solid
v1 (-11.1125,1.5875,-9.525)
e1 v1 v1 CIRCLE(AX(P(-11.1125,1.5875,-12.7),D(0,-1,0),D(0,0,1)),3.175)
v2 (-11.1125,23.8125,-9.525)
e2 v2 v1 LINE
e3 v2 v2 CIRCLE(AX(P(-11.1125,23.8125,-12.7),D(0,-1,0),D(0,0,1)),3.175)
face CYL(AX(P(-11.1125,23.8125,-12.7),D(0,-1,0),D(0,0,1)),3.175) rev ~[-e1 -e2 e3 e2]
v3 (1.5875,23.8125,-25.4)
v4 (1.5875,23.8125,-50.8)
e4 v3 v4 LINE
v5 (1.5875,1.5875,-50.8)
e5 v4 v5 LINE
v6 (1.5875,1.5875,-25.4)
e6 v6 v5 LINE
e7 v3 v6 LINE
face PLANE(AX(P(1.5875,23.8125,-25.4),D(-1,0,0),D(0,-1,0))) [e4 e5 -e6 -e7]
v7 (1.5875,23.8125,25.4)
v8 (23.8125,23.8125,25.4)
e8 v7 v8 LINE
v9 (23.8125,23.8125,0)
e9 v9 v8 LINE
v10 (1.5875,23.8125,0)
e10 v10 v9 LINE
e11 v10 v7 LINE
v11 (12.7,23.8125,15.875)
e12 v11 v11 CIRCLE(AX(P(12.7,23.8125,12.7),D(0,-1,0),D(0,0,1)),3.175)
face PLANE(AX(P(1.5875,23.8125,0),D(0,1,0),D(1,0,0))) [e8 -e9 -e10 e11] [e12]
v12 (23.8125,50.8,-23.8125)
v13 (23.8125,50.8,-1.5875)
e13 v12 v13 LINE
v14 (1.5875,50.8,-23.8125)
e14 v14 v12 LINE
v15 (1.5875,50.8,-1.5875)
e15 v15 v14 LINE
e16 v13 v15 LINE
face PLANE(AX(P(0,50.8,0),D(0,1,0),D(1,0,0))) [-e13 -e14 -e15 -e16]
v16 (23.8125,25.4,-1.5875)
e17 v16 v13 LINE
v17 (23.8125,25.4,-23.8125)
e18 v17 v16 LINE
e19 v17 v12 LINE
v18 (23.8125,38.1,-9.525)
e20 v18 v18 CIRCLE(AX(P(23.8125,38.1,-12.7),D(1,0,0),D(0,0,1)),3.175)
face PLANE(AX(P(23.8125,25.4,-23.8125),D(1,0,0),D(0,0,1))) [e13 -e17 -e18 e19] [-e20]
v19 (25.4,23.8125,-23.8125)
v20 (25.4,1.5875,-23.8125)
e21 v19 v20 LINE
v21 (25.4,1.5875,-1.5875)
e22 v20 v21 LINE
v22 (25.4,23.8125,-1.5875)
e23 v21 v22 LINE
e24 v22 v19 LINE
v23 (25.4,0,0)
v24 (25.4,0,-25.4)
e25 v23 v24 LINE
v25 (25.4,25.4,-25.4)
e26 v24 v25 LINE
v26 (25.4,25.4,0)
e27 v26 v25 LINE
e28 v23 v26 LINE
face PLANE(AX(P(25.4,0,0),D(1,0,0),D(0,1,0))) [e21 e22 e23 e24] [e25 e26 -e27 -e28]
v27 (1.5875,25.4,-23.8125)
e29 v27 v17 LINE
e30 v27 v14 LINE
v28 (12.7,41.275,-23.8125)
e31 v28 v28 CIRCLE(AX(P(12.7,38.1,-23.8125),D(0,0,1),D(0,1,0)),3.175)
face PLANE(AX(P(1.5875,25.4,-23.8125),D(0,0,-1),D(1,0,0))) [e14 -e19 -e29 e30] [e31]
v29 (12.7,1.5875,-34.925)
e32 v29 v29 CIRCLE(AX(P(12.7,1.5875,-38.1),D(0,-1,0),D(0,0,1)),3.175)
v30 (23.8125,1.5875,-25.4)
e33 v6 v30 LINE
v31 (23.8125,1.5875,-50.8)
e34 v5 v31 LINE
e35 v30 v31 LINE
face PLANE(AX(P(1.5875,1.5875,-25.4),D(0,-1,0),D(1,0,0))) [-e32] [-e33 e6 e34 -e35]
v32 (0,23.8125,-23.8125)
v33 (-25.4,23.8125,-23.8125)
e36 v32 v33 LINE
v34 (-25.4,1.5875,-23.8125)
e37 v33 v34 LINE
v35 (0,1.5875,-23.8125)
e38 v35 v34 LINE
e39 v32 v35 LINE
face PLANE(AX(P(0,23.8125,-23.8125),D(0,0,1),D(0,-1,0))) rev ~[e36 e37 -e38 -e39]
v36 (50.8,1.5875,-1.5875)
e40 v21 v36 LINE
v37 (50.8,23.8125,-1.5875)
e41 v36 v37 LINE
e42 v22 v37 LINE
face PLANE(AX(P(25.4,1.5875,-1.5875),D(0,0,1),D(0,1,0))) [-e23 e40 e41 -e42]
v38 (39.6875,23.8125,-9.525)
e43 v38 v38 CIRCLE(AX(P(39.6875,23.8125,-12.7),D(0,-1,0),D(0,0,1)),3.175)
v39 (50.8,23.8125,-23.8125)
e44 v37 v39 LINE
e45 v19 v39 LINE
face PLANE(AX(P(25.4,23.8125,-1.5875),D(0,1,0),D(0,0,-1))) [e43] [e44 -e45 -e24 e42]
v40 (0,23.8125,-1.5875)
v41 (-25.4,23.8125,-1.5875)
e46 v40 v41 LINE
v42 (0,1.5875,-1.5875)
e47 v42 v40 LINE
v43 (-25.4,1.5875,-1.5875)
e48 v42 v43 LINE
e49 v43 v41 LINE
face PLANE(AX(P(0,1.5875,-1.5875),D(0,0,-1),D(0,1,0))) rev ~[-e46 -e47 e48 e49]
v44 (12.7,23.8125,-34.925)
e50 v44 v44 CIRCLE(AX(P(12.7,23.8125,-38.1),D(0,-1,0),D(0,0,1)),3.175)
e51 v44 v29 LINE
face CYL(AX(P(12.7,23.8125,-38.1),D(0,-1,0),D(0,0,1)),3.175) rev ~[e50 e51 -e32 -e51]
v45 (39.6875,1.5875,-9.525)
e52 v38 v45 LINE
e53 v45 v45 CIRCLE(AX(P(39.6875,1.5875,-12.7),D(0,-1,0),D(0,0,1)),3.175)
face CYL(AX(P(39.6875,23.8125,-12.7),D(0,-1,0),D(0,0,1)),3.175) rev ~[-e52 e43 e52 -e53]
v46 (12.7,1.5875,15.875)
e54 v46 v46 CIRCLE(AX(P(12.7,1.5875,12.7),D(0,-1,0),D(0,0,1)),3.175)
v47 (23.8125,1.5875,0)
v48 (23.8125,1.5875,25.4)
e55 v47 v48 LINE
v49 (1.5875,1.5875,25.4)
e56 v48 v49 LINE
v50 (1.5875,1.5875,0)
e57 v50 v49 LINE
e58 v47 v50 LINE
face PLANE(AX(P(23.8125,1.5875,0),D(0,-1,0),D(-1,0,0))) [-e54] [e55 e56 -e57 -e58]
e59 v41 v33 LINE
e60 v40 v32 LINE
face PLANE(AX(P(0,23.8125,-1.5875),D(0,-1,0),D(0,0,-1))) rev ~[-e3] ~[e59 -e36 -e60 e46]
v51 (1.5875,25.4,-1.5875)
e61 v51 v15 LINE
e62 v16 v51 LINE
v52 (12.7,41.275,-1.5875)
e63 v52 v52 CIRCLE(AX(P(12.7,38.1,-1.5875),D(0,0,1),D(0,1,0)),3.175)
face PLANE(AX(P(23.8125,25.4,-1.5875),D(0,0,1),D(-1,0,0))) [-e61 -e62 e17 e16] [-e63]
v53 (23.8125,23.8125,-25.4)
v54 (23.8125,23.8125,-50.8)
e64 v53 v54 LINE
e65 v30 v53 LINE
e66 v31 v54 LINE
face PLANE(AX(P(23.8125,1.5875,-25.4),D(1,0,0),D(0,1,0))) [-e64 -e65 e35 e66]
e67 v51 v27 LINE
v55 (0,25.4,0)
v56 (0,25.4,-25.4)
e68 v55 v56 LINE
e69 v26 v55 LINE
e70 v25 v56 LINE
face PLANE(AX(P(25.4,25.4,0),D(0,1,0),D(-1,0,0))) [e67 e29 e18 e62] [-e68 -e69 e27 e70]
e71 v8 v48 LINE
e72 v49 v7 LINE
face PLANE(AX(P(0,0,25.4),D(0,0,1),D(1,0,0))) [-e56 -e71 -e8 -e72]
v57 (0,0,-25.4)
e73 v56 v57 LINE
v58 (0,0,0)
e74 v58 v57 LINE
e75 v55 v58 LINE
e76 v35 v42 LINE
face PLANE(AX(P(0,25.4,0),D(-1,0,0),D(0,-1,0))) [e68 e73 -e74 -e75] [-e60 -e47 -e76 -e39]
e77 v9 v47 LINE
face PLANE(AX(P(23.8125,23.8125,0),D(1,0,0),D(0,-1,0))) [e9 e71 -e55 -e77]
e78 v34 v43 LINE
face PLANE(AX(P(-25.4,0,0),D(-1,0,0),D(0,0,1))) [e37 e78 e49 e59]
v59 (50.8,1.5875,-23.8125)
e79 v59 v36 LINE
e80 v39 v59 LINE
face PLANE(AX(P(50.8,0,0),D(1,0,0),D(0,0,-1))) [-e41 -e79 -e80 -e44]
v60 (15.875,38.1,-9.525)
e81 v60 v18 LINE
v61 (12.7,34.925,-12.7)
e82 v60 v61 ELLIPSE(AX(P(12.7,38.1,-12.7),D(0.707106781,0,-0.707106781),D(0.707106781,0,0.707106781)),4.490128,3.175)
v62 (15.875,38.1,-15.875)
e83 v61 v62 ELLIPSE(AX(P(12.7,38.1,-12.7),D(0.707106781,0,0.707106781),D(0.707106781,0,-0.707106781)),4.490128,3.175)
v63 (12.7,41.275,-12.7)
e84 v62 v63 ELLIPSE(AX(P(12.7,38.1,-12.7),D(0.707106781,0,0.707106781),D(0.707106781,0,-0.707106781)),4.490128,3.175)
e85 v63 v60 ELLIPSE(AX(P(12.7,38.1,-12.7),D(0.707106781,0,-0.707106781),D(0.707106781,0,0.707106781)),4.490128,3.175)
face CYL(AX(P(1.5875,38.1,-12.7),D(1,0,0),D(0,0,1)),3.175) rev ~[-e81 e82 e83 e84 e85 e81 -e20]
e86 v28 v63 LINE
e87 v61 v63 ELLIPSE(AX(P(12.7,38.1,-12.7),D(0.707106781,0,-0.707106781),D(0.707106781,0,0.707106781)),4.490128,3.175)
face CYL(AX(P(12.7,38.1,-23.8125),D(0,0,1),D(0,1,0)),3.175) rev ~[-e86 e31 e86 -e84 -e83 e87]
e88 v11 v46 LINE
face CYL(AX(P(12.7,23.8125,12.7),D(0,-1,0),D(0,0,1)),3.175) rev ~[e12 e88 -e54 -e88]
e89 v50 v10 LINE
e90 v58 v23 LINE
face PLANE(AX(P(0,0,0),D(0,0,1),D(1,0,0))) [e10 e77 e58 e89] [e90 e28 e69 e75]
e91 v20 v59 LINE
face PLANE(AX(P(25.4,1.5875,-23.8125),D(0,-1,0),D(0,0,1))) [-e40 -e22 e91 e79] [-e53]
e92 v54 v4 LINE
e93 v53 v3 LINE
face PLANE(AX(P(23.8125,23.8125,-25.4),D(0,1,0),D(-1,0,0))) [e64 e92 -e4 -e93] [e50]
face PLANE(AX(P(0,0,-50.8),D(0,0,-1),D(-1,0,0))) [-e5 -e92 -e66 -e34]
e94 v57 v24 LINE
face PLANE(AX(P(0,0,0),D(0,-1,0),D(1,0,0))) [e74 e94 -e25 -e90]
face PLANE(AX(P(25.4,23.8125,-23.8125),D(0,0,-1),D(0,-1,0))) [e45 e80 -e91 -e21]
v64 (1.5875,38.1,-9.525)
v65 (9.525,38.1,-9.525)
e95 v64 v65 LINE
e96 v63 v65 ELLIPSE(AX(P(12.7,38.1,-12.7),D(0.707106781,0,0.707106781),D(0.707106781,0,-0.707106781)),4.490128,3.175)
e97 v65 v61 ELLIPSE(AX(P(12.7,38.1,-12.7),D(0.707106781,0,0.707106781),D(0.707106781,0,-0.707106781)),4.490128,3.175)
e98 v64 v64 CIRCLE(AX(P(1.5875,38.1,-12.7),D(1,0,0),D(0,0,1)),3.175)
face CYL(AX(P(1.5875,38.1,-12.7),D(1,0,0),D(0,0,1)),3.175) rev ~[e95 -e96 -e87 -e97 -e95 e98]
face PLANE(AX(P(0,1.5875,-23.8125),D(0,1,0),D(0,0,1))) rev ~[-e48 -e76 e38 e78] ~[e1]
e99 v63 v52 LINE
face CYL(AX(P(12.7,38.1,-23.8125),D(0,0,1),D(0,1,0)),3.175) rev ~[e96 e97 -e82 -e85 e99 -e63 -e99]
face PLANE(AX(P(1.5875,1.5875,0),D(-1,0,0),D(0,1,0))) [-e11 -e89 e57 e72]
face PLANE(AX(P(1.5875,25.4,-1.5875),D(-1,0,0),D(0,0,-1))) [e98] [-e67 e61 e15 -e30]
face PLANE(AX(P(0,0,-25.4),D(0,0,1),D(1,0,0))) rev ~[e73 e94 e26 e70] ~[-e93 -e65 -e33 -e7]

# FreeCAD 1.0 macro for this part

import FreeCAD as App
import Part
import Sketcher
from FreeCAD import Vector
Q = App.Units.Quantity

doc = App.newDocument("Part")
params = doc.addObject("Spreadsheet::Sheet", "Params")
for row, (alias, value) in enumerate([
    ("sketch1_width", "1 in"),
    ("pad1_length", "1 in"),
    ("sketch2_width", "0.875 in"),
    ("pad2_length", "1 in"),
    ("sketch3_width", "0.875 in"),
    ("pad3_length", "1 in"),
    ("sketch4_width", "0.875 in"),
    ("pad4_length", "1 in"),
    ("sketch5_width", "0.875 in"),
    ("pad5_length", "1 in"),
    ("sketch6_width", "0.875 in"),
    ("pad6_length", "1 in"),
    ("sketch7_diameter", "0.25 in"),
    ("hole_diameter", "0.25 in"),
    ("hole_depth", "1 in"),
    ("sketch8_diameter", "0.25 in"),
    ("hole2_diameter", "0.25 in"),
    ("hole2_depth", "1 in"),
    ("sketch9_diameter", "0.25 in"),
    ("hole3_diameter", "0.25 in"),
    ("hole3_depth", "1 in"),
], start=1):
    params.set(f"A{row}", alias)
    params.set(f"B{row}", "=" + value)
    params.setAlias(f"B{row}", alias)

body = doc.addObject("PartDesign::Body", "Body")

# Sketch on XY plane
sketch1 = doc.addObject("Sketcher::SketchObject", "Sketch")
body.addObject(sketch1)
sketch1.AttachmentSupport = (doc.XY_Plane, [""])
sketch1.MapMode = "FlatFace"
sketch1.addGeometry([
    Part.LineSegment(Vector(0, 25, 0), Vector(0, 0, 0)),
    Part.LineSegment(Vector(0, 0, 0), Vector(25, 0, 0)),
    Part.LineSegment(Vector(25, 0, 0), Vector(25, 25, 0)),
    Part.LineSegment(Vector(25, 25, 0), Vector(0, 25, 0)),
], False)
sketch1.addConstraint([
    Sketcher.Constraint("Coincident", 0, 2, 1, 1),
    Sketcher.Constraint("Coincident", 1, 2, 2, 1),
    Sketcher.Constraint("Coincident", 2, 2, 3, 1),
    Sketcher.Constraint("Coincident", 3, 2, 0, 1),
    Sketcher.Constraint("Vertical", 0),
    Sketcher.Constraint("Horizontal", 1),
    Sketcher.Constraint("Vertical", 2),
    Sketcher.Constraint("Horizontal", 3),
    Sketcher.Constraint("Coincident", 0, 2, -1, 1),
    Sketcher.Constraint("Equal", 3, 0),
    Sketcher.Constraint("DistanceX", 1, 1, 1, 2, Q("1 in")),
])
sketch1.setExpression("Constraints[10]", "Params.sketch1_width")
pad1 = doc.addObject("PartDesign::Pad", "Pad")
body.addObject(pad1)
pad1.Profile = sketch1
pad1.setExpression("Length", "Params.pad1_length")
pad1.Reversed = True

# Sketch on XY plane
sketch2 = doc.addObject("Sketcher::SketchObject", "Sketch001")
body.addObject(sketch2)
sketch2.AttachmentSupport = (doc.XY_Plane, [""])
sketch2.MapMode = "FlatFace"
sketch2.addGeometry([
    Part.LineSegment(Vector(24, 24, 0), Vector(2, 24, 0)),
    Part.LineSegment(Vector(2, 24, 0), Vector(2, 2, 0)),
    Part.LineSegment(Vector(2, 2, 0), Vector(24, 2, 0)),
    Part.LineSegment(Vector(24, 2, 0), Vector(24, 24, 0)),
], False)
sketch2.addConstraint([
    Sketcher.Constraint("Coincident", 0, 2, 1, 1),
    Sketcher.Constraint("Coincident", 1, 2, 2, 1),
    Sketcher.Constraint("Coincident", 2, 2, 3, 1),
    Sketcher.Constraint("Coincident", 3, 2, 0, 1),
    Sketcher.Constraint("Horizontal", 0),
    Sketcher.Constraint("Vertical", 1),
    Sketcher.Constraint("Horizontal", 2),
    Sketcher.Constraint("Vertical", 3),
    Sketcher.Constraint("Equal", 2, 1),
    Sketcher.Constraint("DistanceX", -1, 1, 0, 2, Q("0.0625 in")),
    Sketcher.Constraint("DistanceY", -1, 1, 1, 2, Q("0.0625 in")),
    Sketcher.Constraint("DistanceX", 0, 2, 0, 1, Q("0.875 in")),
])
sketch2.setExpression("Constraints[11]", "Params.sketch2_width")
pad2 = doc.addObject("PartDesign::Pad", "Pad001")
body.addObject(pad2)
pad2.Profile = sketch2
pad2.setExpression("Length", "Params.pad2_length")

# Sketch on YZ plane
sketch3 = doc.addObject("Sketcher::SketchObject", "Sketch002")
body.addObject(sketch3)
sketch3.AttachmentSupport = (doc.YZ_Plane, [""])
sketch3.MapMode = "FlatFace"
sketch3.AttachmentOffset = App.Placement(Vector(0, 0, 1 * 25.4), App.Rotation())
sketch3.addGeometry([
    Part.LineSegment(Vector(2, -24, 0), Vector(24, -24, 0)),
    Part.LineSegment(Vector(24, -24, 0), Vector(24, -2, 0)),
    Part.LineSegment(Vector(24, -2, 0), Vector(2, -2, 0)),
    Part.LineSegment(Vector(2, -2, 0), Vector(2, -24, 0)),
], False)
sketch3.addConstraint([
    Sketcher.Constraint("Coincident", 0, 2, 1, 1),
    Sketcher.Constraint("Coincident", 1, 2, 2, 1),
    Sketcher.Constraint("Coincident", 2, 2, 3, 1),
    Sketcher.Constraint("Coincident", 3, 2, 0, 1),
    Sketcher.Constraint("Horizontal", 0),
    Sketcher.Constraint("Vertical", 1),
    Sketcher.Constraint("Horizontal", 2),
    Sketcher.Constraint("Vertical", 3),
    Sketcher.Constraint("Equal", 2, 1),
    Sketcher.Constraint("DistanceY", 1, 2, -1, 1, Q("0.0625 in")),
    Sketcher.Constraint("DistanceX", -1, 1, 2, 2, Q("0.0625 in")),
    Sketcher.Constraint("DistanceX", 0, 1, 0, 2, Q("0.875 in")),
])
sketch3.setExpression("Constraints[11]", "Params.sketch3_width")
pad3 = doc.addObject("PartDesign::Pad", "Pad002")
body.addObject(pad3)
pad3.Profile = sketch3
pad3.setExpression("Length", "Params.pad3_length")

# Sketch on XZ plane
sketch4 = doc.addObject("Sketcher::SketchObject", "Sketch003")
body.addObject(sketch4)
sketch4.AttachmentSupport = (doc.XZ_Plane, [""])
sketch4.MapMode = "FlatFace"
sketch4.AttachmentOffset = App.Placement(Vector(0, 0, -1 * 25.4), App.Rotation())
sketch4.addGeometry([
    Part.LineSegment(Vector(24, -24, 0), Vector(2, -24, 0)),
    Part.LineSegment(Vector(2, -24, 0), Vector(2, -2, 0)),
    Part.LineSegment(Vector(2, -2, 0), Vector(24, -2, 0)),
    Part.LineSegment(Vector(24, -2, 0), Vector(24, -24, 0)),
], False)
sketch4.addConstraint([
    Sketcher.Constraint("Coincident", 0, 2, 1, 1),
    Sketcher.Constraint("Coincident", 1, 2, 2, 1),
    Sketcher.Constraint("Coincident", 2, 2, 3, 1),
    Sketcher.Constraint("Coincident", 3, 2, 0, 1),
    Sketcher.Constraint("Horizontal", 0),
    Sketcher.Constraint("Vertical", 1),
    Sketcher.Constraint("Horizontal", 2),
    Sketcher.Constraint("Vertical", 3),
    Sketcher.Constraint("Equal", 2, 1),
    Sketcher.Constraint("DistanceX", -1, 1, 0, 2, Q("0.0625 in")),
    Sketcher.Constraint("DistanceY", 1, 2, -1, 1, Q("0.0625 in")),
    Sketcher.Constraint("DistanceX", 0, 2, 0, 1, Q("0.875 in")),
])
sketch4.setExpression("Constraints[11]", "Params.sketch4_width")
pad4 = doc.addObject("PartDesign::Pad", "Pad003")
body.addObject(pad4)
pad4.Profile = sketch4
pad4.setExpression("Length", "Params.pad4_length")
pad4.Reversed = True

# Sketch on YZ plane
sketch5 = doc.addObject("Sketcher::SketchObject", "Sketch004")
body.addObject(sketch5)
sketch5.AttachmentSupport = (doc.YZ_Plane, [""])
sketch5.MapMode = "FlatFace"
sketch5.addGeometry([
    Part.LineSegment(Vector(24, -2, 0), Vector(24, -24, 0)),
    Part.LineSegment(Vector(24, -24, 0), Vector(2, -24, 0)),
    Part.LineSegment(Vector(2, -24, 0), Vector(2, -2, 0)),
    Part.LineSegment(Vector(2, -2, 0), Vector(24, -2, 0)),
], False)
sketch5.addConstraint([
    Sketcher.Constraint("Coincident", 0, 2, 1, 1),
    Sketcher.Constraint("Coincident", 1, 2, 2, 1),
    Sketcher.Constraint("Coincident", 2, 2, 3, 1),
    Sketcher.Constraint("Coincident", 3, 2, 0, 1),
    Sketcher.Constraint("Vertical", 0),
    Sketcher.Constraint("Horizontal", 1),
    Sketcher.Constraint("Vertical", 2),
    Sketcher.Constraint("Horizontal", 3),
    Sketcher.Constraint("Equal", 3, 0),
    Sketcher.Constraint("DistanceX", -1, 1, 1, 2, Q("0.0625 in")),
    Sketcher.Constraint("DistanceY", 2, 2, -1, 1, Q("0.0625 in")),
    Sketcher.Constraint("DistanceX", 1, 2, 1, 1, Q("0.875 in")),
])
sketch5.setExpression("Constraints[11]", "Params.sketch5_width")
pad5 = doc.addObject("PartDesign::Pad", "Pad004")
body.addObject(pad5)
pad5.Profile = sketch5
pad5.setExpression("Length", "Params.pad5_length")
pad5.Reversed = True

# Sketch on XY plane
sketch6 = doc.addObject("Sketcher::SketchObject", "Sketch005")
body.addObject(sketch6)
sketch6.AttachmentSupport = (doc.XY_Plane, [""])
sketch6.MapMode = "FlatFace"
sketch6.AttachmentOffset = App.Placement(Vector(0, 0, -1 * 25.4), App.Rotation())
sketch6.addGeometry([
    Part.LineSegment(Vector(2, 2, 0), Vector(2, 24, 0)),
    Part.LineSegment(Vector(2, 24, 0), Vector(24, 24, 0)),
    Part.LineSegment(Vector(24, 24, 0), Vector(24, 2, 0)),
    Part.LineSegment(Vector(24, 2, 0), Vector(2, 2, 0)),
], False)
sketch6.addConstraint([
    Sketcher.Constraint("Coincident", 0, 2, 1, 1),
    Sketcher.Constraint("Coincident", 1, 2, 2, 1),
    Sketcher.Constraint("Coincident", 2, 2, 3, 1),
    Sketcher.Constraint("Coincident", 3, 2, 0, 1),
    Sketcher.Constraint("Vertical", 0),
    Sketcher.Constraint("Horizontal", 1),
    Sketcher.Constraint("Vertical", 2),
    Sketcher.Constraint("Horizontal", 3),
    Sketcher.Constraint("Equal", 3, 0),
    Sketcher.Constraint("DistanceX", -1, 1, 0, 2, Q("0.0625 in")),
    Sketcher.Constraint("DistanceY", -1, 1, 2, 2, Q("0.0625 in")),
    Sketcher.Constraint("DistanceX", 1, 1, 1, 2, Q("0.875 in")),
])
sketch6.setExpression("Constraints[11]", "Params.sketch6_width")
pad6 = doc.addObject("PartDesign::Pad", "Pad005")
body.addObject(pad6)
pad6.Profile = sketch6
pad6.setExpression("Length", "Params.pad6_length")
pad6.Reversed = True

# Sketch on XZ plane
sketch7 = doc.addObject("Sketcher::SketchObject", "Sketch006")
body.addObject(sketch7)
sketch7.AttachmentSupport = (doc.XZ_Plane, [""])
sketch7.MapMode = "FlatFace"
sketch7.AttachmentOffset = App.Placement(Vector(0, 0, -0.9375 * 25.4), App.Rotation())
sketch7.addGeometry([
    Part.Circle(Vector(12.7, 12.7, 0), Vector(0, 0, 1), 3.2),
    Part.Circle(Vector(-11.1, -12.7, 0), Vector(0, 0, 1), 3.2),
    Part.Circle(Vector(12.7, -38.1, 0), Vector(0, 0, 1), 3.2),
    Part.Circle(Vector(39.7, -12.7, 0), Vector(0, 0, 1), 3.2),
], False)
sketch7.addConstraint([
    Sketcher.Constraint("Equal", 0, 1),
    Sketcher.Constraint("Equal", 1, 2),
    Sketcher.Constraint("Equal", 2, 3),
    Sketcher.Constraint("Horizontal", 1, 3, 3, 3),
    Sketcher.Constraint("Vertical", 0, 3, 2, 3),
    Sketcher.Constraint("Diameter", 0, Q("0.25 in")),
    Sketcher.Constraint("DistanceY", 1, 3, 0, 3, Q("1 in")),
    Sketcher.Constraint("DistanceY", 2, 3, 1, 3, Q("1 in")),
    Sketcher.Constraint("DistanceX", 1, 3, 3, 3, Q("2 in")),
    Sketcher.Constraint("DistanceX", -1, 1, 0, 3, Q("0.5 in")),
    Sketcher.Constraint("DistanceY", -1, 1, 0, 3, Q("0.5 in")),
    Sketcher.Constraint("DistanceX", 1, 3, -1, 1, Q("0.4375 in")),
])
sketch7.setExpression("Constraints[5]", "Params.sketch7_diameter")
doc.recompute()
hole = doc.addObject("PartDesign::Hole", "Hole")
body.addObject(hole)
hole.Profile = sketch7
hole.ThreadType = "None"
hole.setExpression("Diameter", "Params.hole_diameter")
hole.DepthType = "Dimension"
hole.setExpression("Depth", "Params.hole_depth")
hole.DrillPoint = "Angled"
hole.DrillPointAngle = 118
hole.Reversed = True

# Sketch on YZ plane
sketch8 = doc.addObject("Sketcher::SketchObject", "Sketch007")
body.addObject(sketch8)
sketch8.AttachmentSupport = (doc.YZ_Plane, [""])
sketch8.MapMode = "FlatFace"
sketch8.AttachmentOffset = App.Placement(Vector(0, 0, 0.0625 * 25.4), App.Rotation())
sketch8.addGeometry(Part.Circle(Vector(38.1, -12.7, 0), Vector(0, 0, 1), 3.2), False)
sketch8.addConstraint([
    Sketcher.Constraint("Diameter", 0, Q("0.25 in")),
    Sketcher.Constraint("DistanceX", -1, 1, 0, 3, Q("1.5 in")),
    Sketcher.Constraint("DistanceY", 0, 3, -1, 1, Q("0.5 in")),
])
sketch8.setExpression("Constraints[0]", "Params.sketch8_diameter")
doc.recompute()
hole2 = doc.addObject("PartDesign::Hole", "Hole001")
body.addObject(hole2)
hole2.Profile = sketch8
hole2.ThreadType = "None"
hole2.setExpression("Diameter", "Params.hole2_diameter")
hole2.DepthType = "Dimension"
hole2.setExpression("Depth", "Params.hole2_depth")
hole2.DrillPoint = "Angled"
hole2.DrillPointAngle = 118
hole2.Reversed = True

# Sketch on XY plane
sketch9 = doc.addObject("Sketcher::SketchObject", "Sketch008")
body.addObject(sketch9)
sketch9.AttachmentSupport = (doc.XY_Plane, [""])
sketch9.MapMode = "FlatFace"
sketch9.AttachmentOffset = App.Placement(Vector(0, 0, -0.9375 * 25.4), App.Rotation())
sketch9.addGeometry(Part.Circle(Vector(12.7, 38.1, 0), Vector(0, 0, 1), 3.2), False)
sketch9.addConstraint([
    Sketcher.Constraint("Diameter", 0, Q("0.25 in")),
    Sketcher.Constraint("DistanceX", -1, 1, 0, 3, Q("0.5 in")),
    Sketcher.Constraint("DistanceY", -1, 1, 0, 3, Q("1.5 in")),
])
sketch9.setExpression("Constraints[0]", "Params.sketch9_diameter")
doc.recompute()
hole3 = doc.addObject("PartDesign::Hole", "Hole002")
body.addObject(hole3)
hole3.Profile = sketch9
hole3.ThreadType = "None"
hole3.setExpression("Diameter", "Params.hole3_diameter")
hole3.DepthType = "Dimension"
hole3.setExpression("Depth", "Params.hole3_depth")
hole3.DrillPoint = "Angled"
hole3.DrillPointAngle = 118
hole3.Reversed = True

doc.recompute()
